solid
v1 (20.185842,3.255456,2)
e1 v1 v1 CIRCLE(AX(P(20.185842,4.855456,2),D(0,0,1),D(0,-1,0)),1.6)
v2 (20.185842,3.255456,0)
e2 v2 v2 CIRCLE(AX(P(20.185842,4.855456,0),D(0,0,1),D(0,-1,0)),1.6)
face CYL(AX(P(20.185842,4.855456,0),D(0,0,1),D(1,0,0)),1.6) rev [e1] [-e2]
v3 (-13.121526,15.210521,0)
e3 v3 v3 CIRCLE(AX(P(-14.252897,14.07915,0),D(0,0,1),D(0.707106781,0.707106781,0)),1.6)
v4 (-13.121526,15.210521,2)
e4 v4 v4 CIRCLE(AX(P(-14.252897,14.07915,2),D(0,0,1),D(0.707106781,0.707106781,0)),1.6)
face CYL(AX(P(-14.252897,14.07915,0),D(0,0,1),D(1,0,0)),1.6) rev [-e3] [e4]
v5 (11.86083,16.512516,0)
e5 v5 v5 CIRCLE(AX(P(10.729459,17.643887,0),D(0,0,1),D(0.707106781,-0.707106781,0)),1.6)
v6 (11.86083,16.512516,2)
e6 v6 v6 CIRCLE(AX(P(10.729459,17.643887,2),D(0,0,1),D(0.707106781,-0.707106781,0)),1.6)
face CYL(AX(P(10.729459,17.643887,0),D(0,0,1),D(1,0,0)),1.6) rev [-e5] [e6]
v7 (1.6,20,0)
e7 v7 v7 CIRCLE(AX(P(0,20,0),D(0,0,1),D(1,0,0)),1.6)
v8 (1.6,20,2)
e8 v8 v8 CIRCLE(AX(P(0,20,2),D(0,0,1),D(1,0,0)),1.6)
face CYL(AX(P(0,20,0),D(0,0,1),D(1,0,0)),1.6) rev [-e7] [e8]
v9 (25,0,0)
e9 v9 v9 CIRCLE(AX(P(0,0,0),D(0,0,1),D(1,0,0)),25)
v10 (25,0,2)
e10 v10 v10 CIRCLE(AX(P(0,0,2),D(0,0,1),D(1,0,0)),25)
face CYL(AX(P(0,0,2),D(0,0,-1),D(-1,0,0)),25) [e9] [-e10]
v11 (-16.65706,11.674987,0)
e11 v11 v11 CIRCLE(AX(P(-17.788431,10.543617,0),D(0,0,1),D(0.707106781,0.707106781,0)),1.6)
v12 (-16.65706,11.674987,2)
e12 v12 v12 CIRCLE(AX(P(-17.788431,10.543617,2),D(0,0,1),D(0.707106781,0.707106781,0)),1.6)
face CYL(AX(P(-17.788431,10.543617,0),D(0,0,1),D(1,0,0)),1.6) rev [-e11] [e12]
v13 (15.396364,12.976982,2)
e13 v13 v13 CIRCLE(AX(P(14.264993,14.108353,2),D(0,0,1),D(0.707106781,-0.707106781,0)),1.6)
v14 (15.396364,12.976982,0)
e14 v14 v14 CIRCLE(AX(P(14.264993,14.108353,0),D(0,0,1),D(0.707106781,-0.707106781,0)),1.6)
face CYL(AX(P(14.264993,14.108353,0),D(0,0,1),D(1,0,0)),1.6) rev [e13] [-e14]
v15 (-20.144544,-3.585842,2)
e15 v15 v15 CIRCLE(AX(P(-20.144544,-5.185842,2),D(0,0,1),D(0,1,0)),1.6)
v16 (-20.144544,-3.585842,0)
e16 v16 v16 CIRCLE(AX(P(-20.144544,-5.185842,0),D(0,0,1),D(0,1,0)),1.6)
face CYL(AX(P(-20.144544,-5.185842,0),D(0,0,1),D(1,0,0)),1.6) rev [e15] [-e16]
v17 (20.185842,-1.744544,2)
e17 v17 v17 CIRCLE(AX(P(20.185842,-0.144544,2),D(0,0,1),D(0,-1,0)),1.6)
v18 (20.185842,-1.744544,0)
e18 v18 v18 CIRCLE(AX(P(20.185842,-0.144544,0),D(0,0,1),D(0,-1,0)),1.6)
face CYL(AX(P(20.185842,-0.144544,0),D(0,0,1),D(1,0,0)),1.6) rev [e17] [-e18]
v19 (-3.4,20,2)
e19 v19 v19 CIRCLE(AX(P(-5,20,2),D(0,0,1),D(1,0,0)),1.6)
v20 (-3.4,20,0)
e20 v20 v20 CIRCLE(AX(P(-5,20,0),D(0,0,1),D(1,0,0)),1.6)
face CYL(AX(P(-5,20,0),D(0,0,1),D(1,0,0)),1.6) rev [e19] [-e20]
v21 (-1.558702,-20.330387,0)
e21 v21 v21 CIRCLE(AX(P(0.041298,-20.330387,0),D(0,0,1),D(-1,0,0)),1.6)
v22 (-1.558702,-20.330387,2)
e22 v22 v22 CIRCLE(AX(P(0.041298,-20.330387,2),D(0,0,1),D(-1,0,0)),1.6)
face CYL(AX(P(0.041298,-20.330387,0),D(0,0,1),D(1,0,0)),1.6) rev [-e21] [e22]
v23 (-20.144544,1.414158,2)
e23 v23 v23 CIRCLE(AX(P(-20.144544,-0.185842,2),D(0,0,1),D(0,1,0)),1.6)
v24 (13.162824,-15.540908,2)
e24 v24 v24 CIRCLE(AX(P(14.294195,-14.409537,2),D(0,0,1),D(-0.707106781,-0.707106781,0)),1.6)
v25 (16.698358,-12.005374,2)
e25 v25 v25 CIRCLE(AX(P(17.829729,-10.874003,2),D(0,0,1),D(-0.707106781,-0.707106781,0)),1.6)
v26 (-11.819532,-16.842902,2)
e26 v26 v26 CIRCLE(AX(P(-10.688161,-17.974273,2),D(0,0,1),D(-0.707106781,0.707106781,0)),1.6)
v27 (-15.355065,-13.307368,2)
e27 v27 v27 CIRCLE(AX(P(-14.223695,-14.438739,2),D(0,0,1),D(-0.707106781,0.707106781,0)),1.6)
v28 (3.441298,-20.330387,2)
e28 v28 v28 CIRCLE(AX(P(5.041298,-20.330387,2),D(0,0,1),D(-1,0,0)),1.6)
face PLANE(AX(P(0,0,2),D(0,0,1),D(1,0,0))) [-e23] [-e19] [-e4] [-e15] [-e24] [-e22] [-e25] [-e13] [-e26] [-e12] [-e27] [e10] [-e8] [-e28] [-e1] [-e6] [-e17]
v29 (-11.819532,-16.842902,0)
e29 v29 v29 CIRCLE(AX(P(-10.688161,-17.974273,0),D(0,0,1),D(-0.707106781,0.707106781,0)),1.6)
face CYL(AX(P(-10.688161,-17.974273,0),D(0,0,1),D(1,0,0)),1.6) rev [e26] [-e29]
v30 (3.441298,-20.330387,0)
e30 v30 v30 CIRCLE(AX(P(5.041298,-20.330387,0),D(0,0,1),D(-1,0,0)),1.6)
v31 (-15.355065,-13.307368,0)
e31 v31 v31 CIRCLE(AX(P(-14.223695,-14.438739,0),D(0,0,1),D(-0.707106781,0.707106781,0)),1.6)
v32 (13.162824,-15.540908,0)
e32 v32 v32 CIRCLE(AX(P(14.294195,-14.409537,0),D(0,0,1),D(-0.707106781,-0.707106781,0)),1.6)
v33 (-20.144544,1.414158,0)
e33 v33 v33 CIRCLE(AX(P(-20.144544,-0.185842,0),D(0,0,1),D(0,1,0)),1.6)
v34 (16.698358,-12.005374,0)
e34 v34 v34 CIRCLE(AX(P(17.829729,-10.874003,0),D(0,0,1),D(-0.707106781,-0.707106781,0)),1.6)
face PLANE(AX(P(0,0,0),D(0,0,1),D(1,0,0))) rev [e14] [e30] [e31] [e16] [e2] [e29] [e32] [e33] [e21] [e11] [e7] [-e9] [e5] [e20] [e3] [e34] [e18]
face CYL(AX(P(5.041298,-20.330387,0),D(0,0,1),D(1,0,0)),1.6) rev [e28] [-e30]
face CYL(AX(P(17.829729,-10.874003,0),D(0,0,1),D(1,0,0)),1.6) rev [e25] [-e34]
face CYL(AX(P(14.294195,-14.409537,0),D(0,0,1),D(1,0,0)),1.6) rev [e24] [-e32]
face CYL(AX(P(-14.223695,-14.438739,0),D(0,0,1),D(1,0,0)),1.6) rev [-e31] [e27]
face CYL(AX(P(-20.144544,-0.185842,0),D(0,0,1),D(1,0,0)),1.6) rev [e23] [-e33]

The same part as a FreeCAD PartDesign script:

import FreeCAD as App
import Part
import Sketcher

V = App.Vector
Q = App.Units.Quantity

doc = App.newDocument("Part")
body = doc.addObject("PartDesign::Body", "Body")

# Sketch on XY plane
sketch1 = body.newObject("Sketcher::SketchObject", "Sketch")
sketch1.AttachmentSupport = (doc.getObject("XY_Plane"), [""])
sketch1.MapMode = "FlatFace"
sketch1.addGeometry(Part.Circle(V(0, 0, 0), V(0, 0, 1), 25), False)
sketch1.addConstraint(Sketcher.Constraint("Coincident", 0, 3, -1, 1))
sketch1.addConstraint(Sketcher.Constraint("Diameter", 0, Q("50 mm")))
pad1 = body.newObject("PartDesign::Pad", "Pad")
pad1.Profile = sketch1
pad1.Length = 2

# Sketch on XY plane
sketch2 = body.newObject("Sketcher::SketchObject", "Sketch001")
sketch2.AttachmentSupport = (doc.getObject("XY_Plane"), [""])
sketch2.MapMode = "FlatFace"
sketch2.AttachmentOffset = App.Placement(V(0, 0, 2), App.Rotation())
sketch2.addGeometry(Part.Circle(V(0, 20, 0), V(0, 0, 1), 1.6), False)
sketch2.addGeometry(Part.Circle(V(-5, 20, 0), V(0, 0, 1), 1.6), False)
sketch2.addConstraint(Sketcher.Constraint("Equal", 0, 1))
sketch2.addConstraint(Sketcher.Constraint("PointOnObject", 0, 3, -2))
sketch2.addConstraint(Sketcher.Constraint("Horizontal", 0, 3, 1, 3))
sketch2.addConstraint(Sketcher.Constraint("Diameter", 0, Q("3.2 mm")))
sketch2.addConstraint(Sketcher.Constraint("DistanceY", -1, 1, 0, 3, Q("20 mm")))
sketch2.addConstraint(Sketcher.Constraint("DistanceX", 1, 3, -1, 1, Q("5 mm")))
pocket1 = body.newObject("PartDesign::Pocket", "Pocket")
pocket1.Profile = sketch2
pocket1.Length = 2
doc.recompute()

datumline = body.newObject("PartDesign::Line", "DatumLine")
datumline.Placement = App.Placement(V(0.020649, -0.165193, 0), App.Rotation(V(0, 0, 1), V(0, 0, 1)))
polarpattern = body.newObject("PartDesign::PolarPattern", "PolarPattern")
polarpattern.Originals = [pocket1]
polarpattern.Axis = (datumline, [""])
polarpattern.Angle = 360
polarpattern.Occurrences = 8
body.Tip = polarpattern

doc.recompute()
